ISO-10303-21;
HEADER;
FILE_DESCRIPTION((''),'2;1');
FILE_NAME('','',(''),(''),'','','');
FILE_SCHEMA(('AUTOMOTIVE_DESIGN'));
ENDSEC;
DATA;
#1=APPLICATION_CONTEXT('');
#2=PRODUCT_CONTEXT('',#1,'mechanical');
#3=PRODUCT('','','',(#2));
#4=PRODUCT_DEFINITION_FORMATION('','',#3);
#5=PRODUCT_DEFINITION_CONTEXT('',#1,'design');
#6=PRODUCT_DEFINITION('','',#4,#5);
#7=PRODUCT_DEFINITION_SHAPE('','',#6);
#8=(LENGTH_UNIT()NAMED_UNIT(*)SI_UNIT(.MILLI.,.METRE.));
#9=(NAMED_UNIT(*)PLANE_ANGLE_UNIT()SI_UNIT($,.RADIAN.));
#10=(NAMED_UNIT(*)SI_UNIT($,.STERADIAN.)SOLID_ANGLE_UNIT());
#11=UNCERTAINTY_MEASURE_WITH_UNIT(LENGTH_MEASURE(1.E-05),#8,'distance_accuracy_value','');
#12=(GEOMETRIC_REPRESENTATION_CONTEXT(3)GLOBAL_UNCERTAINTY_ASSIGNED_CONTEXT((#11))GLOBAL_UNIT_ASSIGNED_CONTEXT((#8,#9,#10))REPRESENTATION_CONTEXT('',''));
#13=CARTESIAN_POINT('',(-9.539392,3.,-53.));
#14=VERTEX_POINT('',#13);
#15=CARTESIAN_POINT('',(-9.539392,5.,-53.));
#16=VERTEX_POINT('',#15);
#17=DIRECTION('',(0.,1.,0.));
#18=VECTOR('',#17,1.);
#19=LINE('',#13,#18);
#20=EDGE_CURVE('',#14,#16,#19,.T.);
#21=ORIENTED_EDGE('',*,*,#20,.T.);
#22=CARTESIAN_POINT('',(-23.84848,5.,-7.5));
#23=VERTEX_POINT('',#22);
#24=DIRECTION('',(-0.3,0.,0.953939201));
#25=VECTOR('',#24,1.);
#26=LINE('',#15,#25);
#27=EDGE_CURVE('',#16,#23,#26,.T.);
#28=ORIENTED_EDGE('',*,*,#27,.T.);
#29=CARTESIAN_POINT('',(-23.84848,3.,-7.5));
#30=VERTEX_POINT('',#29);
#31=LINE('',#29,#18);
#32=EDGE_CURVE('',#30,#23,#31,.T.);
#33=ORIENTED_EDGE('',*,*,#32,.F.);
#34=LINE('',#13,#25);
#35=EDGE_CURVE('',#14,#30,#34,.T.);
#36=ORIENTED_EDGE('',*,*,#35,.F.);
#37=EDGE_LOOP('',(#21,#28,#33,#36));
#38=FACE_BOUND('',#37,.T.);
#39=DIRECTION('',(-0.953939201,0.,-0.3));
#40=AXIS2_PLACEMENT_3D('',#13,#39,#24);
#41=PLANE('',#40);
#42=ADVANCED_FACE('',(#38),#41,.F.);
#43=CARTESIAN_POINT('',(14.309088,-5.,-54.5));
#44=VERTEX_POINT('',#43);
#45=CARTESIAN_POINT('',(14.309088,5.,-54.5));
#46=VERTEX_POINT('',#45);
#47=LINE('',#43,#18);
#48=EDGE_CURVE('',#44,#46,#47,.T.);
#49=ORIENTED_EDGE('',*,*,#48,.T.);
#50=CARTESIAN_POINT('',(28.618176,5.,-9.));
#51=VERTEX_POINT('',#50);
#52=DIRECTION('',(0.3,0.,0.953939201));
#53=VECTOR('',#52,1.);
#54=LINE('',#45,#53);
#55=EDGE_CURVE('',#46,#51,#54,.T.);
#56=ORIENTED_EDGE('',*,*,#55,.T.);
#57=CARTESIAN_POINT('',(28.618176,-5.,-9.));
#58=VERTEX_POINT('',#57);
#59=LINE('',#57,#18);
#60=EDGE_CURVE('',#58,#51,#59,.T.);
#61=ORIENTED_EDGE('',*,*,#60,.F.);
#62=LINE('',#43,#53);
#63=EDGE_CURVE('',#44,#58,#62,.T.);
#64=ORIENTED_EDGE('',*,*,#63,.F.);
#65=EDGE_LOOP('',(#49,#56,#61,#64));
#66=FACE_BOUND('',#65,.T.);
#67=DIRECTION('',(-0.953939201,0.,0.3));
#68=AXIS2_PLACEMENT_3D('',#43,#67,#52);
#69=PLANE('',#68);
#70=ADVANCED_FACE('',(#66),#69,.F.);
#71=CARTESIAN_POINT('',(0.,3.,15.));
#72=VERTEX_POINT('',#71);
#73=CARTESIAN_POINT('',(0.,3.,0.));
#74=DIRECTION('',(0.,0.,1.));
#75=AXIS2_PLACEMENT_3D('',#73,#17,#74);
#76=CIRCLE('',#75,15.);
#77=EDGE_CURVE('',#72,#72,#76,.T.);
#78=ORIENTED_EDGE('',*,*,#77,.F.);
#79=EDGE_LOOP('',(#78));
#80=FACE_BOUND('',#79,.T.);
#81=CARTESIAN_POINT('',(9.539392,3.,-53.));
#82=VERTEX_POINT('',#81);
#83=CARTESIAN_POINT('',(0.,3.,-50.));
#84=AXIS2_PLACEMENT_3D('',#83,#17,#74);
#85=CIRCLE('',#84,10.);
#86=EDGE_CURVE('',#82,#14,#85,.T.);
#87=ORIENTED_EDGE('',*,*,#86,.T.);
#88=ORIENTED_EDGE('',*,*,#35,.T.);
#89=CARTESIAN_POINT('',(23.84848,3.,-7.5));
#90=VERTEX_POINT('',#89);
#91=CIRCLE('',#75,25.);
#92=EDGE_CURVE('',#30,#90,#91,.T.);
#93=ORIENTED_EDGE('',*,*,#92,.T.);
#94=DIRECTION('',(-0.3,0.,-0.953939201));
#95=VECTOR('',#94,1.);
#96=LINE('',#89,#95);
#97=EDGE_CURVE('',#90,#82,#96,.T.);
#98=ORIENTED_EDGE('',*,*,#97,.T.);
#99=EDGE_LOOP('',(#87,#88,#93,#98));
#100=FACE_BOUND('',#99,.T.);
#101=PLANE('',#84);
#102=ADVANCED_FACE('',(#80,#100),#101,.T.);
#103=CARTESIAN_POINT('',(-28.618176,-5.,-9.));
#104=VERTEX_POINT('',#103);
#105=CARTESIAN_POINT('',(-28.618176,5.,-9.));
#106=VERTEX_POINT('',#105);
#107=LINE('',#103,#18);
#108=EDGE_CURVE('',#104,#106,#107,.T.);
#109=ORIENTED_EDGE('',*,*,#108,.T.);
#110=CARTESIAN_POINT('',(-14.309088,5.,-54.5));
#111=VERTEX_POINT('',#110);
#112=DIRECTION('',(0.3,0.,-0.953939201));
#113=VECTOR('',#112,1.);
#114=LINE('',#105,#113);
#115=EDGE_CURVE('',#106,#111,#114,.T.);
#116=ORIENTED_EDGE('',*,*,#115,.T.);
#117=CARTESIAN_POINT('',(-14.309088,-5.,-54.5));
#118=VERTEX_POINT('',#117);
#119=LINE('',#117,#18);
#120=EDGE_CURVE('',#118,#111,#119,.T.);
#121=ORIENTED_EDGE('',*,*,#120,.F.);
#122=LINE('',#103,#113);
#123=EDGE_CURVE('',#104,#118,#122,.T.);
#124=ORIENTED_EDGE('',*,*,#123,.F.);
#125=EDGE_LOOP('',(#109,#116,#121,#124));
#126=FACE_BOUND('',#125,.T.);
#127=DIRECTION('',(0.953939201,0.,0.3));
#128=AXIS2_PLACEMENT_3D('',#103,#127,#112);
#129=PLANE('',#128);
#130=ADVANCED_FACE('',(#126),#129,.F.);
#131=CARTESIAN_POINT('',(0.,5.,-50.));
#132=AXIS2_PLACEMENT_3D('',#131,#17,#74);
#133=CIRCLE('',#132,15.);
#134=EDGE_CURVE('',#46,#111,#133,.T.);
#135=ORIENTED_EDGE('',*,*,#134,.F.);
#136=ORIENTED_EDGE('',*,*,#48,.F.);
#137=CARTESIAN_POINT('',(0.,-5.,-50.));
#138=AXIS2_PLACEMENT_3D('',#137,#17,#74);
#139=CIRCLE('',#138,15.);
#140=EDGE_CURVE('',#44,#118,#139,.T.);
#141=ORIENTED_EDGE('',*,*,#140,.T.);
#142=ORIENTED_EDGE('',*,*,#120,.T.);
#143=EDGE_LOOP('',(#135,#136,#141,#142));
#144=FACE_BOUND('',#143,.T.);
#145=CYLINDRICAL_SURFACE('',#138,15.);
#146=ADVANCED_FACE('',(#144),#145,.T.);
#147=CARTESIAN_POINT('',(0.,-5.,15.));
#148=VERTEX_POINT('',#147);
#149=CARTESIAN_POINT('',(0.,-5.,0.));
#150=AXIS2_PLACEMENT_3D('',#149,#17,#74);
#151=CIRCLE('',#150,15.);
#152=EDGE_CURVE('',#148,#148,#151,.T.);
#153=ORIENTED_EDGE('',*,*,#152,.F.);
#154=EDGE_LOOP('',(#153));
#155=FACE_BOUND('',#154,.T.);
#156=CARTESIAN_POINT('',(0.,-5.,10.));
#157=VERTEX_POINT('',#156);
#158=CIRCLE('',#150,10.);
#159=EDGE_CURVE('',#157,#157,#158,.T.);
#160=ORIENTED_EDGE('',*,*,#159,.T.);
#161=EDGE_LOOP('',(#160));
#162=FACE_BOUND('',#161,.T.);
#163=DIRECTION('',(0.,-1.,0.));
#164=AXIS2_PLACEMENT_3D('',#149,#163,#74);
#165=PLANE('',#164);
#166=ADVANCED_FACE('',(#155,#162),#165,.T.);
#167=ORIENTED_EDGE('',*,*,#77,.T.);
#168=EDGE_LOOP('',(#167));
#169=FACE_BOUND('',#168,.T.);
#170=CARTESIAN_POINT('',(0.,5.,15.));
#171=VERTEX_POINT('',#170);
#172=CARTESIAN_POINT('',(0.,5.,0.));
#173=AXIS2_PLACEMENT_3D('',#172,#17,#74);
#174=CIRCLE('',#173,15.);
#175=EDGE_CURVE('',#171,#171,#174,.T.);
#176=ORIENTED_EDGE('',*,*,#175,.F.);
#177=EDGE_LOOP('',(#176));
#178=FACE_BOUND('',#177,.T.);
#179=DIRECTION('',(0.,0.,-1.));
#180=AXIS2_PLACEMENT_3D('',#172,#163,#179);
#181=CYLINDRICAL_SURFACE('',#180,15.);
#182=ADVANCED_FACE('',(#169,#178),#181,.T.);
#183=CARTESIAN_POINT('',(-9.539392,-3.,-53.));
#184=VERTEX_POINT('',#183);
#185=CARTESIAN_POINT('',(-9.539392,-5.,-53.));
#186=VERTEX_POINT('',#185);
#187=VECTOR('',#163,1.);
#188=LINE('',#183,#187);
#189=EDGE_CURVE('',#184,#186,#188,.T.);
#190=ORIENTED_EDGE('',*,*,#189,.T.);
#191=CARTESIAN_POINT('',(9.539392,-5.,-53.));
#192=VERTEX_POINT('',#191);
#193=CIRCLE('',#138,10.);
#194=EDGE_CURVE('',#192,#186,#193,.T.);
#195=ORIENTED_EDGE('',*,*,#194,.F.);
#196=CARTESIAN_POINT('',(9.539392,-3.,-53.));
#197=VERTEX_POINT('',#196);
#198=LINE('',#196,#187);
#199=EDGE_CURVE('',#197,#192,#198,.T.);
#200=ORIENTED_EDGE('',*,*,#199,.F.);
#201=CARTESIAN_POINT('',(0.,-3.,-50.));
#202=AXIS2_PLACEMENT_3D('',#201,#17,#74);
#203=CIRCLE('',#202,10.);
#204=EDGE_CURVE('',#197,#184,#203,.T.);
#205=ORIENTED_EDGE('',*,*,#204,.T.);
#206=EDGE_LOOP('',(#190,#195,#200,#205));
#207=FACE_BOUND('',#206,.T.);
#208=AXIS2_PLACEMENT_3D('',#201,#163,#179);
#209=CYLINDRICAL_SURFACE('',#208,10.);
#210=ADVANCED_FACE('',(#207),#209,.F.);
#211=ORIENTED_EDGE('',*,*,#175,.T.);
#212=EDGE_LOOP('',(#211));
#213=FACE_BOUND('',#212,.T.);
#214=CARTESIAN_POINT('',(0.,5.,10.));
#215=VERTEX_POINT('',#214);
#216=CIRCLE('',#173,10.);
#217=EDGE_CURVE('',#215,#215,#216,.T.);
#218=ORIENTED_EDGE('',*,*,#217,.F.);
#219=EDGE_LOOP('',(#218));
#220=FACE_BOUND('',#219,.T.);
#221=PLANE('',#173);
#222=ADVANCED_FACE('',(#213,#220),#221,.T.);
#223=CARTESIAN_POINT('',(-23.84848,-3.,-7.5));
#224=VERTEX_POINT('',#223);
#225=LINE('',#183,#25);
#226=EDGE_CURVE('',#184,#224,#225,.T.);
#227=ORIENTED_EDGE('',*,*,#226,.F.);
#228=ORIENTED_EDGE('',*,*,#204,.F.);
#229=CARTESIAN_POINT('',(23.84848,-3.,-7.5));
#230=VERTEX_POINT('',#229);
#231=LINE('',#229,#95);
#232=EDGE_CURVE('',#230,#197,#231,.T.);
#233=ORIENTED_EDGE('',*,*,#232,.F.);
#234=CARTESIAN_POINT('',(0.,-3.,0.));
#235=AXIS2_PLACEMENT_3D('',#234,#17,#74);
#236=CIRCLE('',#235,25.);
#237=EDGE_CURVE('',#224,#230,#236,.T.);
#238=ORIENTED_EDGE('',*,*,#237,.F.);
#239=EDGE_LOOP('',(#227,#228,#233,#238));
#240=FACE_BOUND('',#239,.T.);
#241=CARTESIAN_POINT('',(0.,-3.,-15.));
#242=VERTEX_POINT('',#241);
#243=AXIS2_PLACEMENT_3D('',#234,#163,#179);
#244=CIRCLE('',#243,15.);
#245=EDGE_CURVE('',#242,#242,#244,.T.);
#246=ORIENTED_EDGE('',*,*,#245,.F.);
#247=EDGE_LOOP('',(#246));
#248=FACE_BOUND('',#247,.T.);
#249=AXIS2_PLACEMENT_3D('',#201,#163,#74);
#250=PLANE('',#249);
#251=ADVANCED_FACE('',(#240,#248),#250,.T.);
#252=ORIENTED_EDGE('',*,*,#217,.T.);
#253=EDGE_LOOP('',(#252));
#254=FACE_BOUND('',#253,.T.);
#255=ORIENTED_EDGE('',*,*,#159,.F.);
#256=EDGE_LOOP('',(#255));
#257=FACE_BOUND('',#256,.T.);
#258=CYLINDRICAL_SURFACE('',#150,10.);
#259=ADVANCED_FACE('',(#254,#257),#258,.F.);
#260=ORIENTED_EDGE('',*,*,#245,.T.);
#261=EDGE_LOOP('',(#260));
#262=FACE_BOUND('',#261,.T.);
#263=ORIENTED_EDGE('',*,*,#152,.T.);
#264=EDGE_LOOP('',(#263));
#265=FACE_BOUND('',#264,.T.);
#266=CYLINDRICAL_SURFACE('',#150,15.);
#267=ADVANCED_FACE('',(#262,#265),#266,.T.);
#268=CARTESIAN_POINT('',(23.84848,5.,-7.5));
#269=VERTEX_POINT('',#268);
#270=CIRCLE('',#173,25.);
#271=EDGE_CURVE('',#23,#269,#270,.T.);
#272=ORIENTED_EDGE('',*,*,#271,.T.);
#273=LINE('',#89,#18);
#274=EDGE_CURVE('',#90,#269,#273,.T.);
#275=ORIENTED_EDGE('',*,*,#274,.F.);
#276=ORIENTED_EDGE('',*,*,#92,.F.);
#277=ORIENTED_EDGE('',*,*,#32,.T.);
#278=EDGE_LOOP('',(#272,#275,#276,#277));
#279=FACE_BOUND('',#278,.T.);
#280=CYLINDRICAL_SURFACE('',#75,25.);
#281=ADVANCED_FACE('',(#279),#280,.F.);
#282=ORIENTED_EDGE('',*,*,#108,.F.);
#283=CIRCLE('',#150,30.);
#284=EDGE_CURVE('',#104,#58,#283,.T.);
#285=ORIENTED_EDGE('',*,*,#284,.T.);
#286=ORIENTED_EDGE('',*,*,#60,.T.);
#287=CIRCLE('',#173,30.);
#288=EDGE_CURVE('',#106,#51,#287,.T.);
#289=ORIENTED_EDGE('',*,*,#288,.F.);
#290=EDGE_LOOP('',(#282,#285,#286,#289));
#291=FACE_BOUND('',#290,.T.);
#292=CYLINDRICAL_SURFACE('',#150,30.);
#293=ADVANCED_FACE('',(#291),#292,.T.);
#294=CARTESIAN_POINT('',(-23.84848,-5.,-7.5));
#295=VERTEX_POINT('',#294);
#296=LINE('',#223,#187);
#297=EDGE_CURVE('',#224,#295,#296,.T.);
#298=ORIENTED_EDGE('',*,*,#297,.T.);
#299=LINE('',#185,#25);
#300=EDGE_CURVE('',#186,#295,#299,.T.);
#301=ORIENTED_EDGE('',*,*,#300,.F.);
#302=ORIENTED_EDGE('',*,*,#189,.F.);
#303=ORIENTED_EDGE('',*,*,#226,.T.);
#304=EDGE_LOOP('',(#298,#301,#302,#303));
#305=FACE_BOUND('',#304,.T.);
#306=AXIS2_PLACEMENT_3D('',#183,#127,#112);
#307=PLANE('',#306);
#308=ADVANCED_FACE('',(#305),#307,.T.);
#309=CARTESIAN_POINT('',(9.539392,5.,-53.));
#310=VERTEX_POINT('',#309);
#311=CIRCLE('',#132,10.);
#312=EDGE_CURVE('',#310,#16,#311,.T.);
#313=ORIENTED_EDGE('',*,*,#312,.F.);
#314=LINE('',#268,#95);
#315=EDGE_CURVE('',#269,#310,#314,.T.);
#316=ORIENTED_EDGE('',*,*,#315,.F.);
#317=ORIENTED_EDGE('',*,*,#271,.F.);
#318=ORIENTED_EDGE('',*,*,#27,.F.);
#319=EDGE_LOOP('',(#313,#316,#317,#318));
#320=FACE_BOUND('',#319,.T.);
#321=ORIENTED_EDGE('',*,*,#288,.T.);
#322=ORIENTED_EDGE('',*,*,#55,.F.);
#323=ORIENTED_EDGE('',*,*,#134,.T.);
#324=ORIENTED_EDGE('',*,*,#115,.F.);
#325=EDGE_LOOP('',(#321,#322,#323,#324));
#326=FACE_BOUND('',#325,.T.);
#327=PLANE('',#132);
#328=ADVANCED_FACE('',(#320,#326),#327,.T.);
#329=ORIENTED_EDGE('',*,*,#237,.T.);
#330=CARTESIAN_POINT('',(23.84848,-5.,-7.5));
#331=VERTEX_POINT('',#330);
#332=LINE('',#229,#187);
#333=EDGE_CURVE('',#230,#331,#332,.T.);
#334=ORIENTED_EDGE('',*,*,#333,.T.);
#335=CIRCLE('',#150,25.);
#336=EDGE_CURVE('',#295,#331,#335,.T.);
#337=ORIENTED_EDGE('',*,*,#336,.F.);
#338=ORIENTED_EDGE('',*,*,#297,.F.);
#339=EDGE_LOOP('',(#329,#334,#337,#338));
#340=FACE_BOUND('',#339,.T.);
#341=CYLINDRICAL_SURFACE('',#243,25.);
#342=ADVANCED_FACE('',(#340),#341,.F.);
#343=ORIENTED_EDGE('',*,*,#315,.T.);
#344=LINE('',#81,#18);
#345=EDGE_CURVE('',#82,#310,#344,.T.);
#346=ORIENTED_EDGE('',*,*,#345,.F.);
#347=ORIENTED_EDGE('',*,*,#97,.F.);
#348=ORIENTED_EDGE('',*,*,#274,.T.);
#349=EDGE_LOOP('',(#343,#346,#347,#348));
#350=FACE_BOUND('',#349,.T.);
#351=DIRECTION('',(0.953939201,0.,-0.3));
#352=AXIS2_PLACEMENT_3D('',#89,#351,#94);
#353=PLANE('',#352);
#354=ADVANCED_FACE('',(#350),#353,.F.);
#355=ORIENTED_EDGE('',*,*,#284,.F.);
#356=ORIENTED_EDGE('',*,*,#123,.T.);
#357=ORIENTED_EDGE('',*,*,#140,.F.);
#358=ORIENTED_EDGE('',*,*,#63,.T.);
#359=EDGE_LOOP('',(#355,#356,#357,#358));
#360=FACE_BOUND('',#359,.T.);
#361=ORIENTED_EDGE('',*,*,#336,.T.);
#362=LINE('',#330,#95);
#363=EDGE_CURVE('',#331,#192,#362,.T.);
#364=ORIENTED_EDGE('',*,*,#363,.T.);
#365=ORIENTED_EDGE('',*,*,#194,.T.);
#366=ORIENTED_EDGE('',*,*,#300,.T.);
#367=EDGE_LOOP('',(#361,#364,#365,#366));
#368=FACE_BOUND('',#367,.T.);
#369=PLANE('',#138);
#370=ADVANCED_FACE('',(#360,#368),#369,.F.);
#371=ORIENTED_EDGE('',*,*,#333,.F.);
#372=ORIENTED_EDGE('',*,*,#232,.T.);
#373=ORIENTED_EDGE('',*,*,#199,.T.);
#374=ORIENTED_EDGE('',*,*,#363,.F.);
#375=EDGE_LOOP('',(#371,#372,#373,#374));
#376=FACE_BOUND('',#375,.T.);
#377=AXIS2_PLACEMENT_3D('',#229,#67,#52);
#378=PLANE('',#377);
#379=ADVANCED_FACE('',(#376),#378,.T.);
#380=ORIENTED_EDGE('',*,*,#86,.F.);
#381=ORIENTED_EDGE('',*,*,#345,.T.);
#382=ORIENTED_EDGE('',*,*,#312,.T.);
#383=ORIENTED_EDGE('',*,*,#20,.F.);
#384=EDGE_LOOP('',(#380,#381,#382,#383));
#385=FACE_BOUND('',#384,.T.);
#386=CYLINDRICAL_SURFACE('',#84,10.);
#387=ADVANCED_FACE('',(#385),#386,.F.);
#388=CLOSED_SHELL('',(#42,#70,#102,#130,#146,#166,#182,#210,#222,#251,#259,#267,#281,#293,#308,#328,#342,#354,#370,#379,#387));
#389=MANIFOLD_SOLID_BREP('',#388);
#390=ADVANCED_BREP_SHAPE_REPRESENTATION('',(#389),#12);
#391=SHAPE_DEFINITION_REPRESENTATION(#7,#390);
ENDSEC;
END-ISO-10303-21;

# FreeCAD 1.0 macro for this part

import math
import FreeCAD as App
import Part
import Sketcher
from FreeCAD import Vector
Q = App.Units.Quantity

doc = App.newDocument("Part")
body = doc.addObject("PartDesign::Body", "Body")

sketch1 = body.newObject("Sketcher::SketchObject", "Sketch")
sketch1.AttachmentSupport = (doc.getObject("XZ_Plane"), [""])
sketch1.MapMode = "FlatFace"
sketch1.addGeometry(Part.LineSegment(Vector(-14, -54, 0), Vector(-29, -9, 0)), False)
sketch1.addGeometry(Part.ArcOfCircle(Part.Circle(Vector(0, 0, 0), Vector(0, 0, 1), 30), math.radians(-17), math.radians(197)), False)
sketch1.addGeometry(Part.LineSegment(Vector(29, -9, 0), Vector(14, -54, 0)), False)
sketch1.addGeometry(Part.ArcOfCircle(Part.Circle(Vector(0, -50, 0), Vector(0, 0, 1), 15), math.radians(-163), math.radians(-17)), False)
sketch1.addConstraint(Sketcher.Constraint("Tangent", 0, 2, 1, 2))
sketch1.addConstraint(Sketcher.Constraint("Tangent", 1, 1, 2, 1))
sketch1.addConstraint(Sketcher.Constraint("Tangent", 2, 2, 3, 2))
sketch1.addConstraint(Sketcher.Constraint("Tangent", 3, 1, 0, 1))
sketch1.addConstraint(Sketcher.Constraint("Coincident", 1, 3, -1, 1))
sketch1.addConstraint(Sketcher.Constraint("PointOnObject", 3, 3, -2))
sketch1.addConstraint(Sketcher.Constraint("Radius", 1, Q("30 mm")))
sketch1.addConstraint(Sketcher.Constraint("Radius", 3, Q("15 mm")))
sketch1.addConstraint(Sketcher.Constraint("DistanceY", 3, 3, -1, 1, Q("50 mm")))
pad1 = body.newObject("PartDesign::Pad", "Pad")
pad1.Profile = sketch1
pad1.Length = 10
pad1.Midplane = True

sketch2 = body.newObject("Sketcher::SketchObject", "Sketch001")
sketch2.AttachmentSupport = (doc.getObject("XZ_Plane"), [""])
sketch2.MapMode = "FlatFace"
sketch2.AttachmentOffset = App.Placement(Vector(0, 0, -5), App.Rotation())
sketch2.addGeometry(Part.LineSegment(Vector(-10, -53, 0), Vector(-24, -8, 0)), False)
sketch2.addGeometry(Part.ArcOfCircle(Part.Circle(Vector(0, 0, 0), Vector(0, 0, 1), 25), math.radians(-17), math.radians(197)), False)
sketch2.addGeometry(Part.LineSegment(Vector(24, -8, 0), Vector(10, -53, 0)), False)
sketch2.addGeometry(Part.ArcOfCircle(Part.Circle(Vector(0, -50, 0), Vector(0, 0, 1), 10), math.radians(-163), math.radians(-17)), False)
sketch2.addConstraint(Sketcher.Constraint("Tangent", 0, 2, 1, 2))
sketch2.addConstraint(Sketcher.Constraint("Tangent", 1, 1, 2, 1))
sketch2.addConstraint(Sketcher.Constraint("Tangent", 2, 2, 3, 2))
sketch2.addConstraint(Sketcher.Constraint("Tangent", 3, 1, 0, 1))
sketch2.addConstraint(Sketcher.Constraint("Coincident", 1, 3, -1, 1))
sketch2.addConstraint(Sketcher.Constraint("PointOnObject", 3, 3, -2))
sketch2.addConstraint(Sketcher.Constraint("Radius", 1, Q("25 mm")))
sketch2.addConstraint(Sketcher.Constraint("Radius", 3, Q("10 mm")))
sketch2.addConstraint(Sketcher.Constraint("DistanceY", 3, 3, -1, 1, Q("50 mm")))
pocket1 = body.newObject("PartDesign::Pocket", "Pocket")
pocket1.Profile = sketch2
pocket1.Length = 2
pocket1.Reversed = True
doc.recompute()

mirrored = body.newObject("PartDesign::Mirrored", "Mirrored")
mirrored.Originals = [pocket1]
mirrored.MirrorPlane = (doc.getObject("XZ_Plane"), [""])
body.Tip = mirrored

sketch3 = body.newObject("Sketcher::SketchObject", "Sketch002")
sketch3.AttachmentSupport = (doc.getObject("XZ_Plane"), [""])
sketch3.MapMode = "FlatFace"
sketch3.AttachmentOffset = App.Placement(Vector(0, 0, -3), App.Rotation())
sketch3.addGeometry(Part.Circle(Vector(0, 0, 0), Vector(0, 0, 1), 10), False)
sketch3.addConstraint(Sketcher.Constraint("Coincident", 0, 3, -1, 1))
sketch3.addConstraint(Sketcher.Constraint("Diameter", 0, Q("20 mm")))
pocket2 = body.newObject("PartDesign::Pocket", "Pocket001")
pocket2.Profile = sketch3
pocket2.Type = "ThroughAll"
pocket2.Reversed = True

sketch4 = body.newObject("Sketcher::SketchObject", "Sketch003")
sketch4.AttachmentSupport = (doc.getObject("XZ_Plane"), [""])
sketch4.MapMode = "FlatFace"
sketch4.AttachmentOffset = App.Placement(Vector(0, 0, -5), App.Rotation())
sketch4.addGeometry(Part.Circle(Vector(0, 0, 0), Vector(0, 0, 1), 15), False)
sketch4.addGeometry(Part.Circle(Vector(0, 0, 0), Vector(0, 0, 1), 10), False)
sketch4.addConstraint(Sketcher.Constraint("Coincident", 0, 3, -1, 1))
sketch4.addConstraint(Sketcher.Constraint("Coincident", 1, 3, -1, 1))
sketch4.addConstraint(Sketcher.Constraint("Diameter", 0, Q("30 mm")))
sketch4.addConstraint(Sketcher.Constraint("Diameter", 1, Q("20 mm")))
pad2 = body.newObject("PartDesign::Pad", "Pad001")
pad2.Profile = sketch4
pad2.Length = 2
doc.recompute()

mirrored2 = body.newObject("PartDesign::Mirrored", "Mirrored001")
mirrored2.Originals = [pad2]
mirrored2.MirrorPlane = (doc.getObject("XZ_Plane"), [""])
body.Tip = mirrored2

doc.recompute()
